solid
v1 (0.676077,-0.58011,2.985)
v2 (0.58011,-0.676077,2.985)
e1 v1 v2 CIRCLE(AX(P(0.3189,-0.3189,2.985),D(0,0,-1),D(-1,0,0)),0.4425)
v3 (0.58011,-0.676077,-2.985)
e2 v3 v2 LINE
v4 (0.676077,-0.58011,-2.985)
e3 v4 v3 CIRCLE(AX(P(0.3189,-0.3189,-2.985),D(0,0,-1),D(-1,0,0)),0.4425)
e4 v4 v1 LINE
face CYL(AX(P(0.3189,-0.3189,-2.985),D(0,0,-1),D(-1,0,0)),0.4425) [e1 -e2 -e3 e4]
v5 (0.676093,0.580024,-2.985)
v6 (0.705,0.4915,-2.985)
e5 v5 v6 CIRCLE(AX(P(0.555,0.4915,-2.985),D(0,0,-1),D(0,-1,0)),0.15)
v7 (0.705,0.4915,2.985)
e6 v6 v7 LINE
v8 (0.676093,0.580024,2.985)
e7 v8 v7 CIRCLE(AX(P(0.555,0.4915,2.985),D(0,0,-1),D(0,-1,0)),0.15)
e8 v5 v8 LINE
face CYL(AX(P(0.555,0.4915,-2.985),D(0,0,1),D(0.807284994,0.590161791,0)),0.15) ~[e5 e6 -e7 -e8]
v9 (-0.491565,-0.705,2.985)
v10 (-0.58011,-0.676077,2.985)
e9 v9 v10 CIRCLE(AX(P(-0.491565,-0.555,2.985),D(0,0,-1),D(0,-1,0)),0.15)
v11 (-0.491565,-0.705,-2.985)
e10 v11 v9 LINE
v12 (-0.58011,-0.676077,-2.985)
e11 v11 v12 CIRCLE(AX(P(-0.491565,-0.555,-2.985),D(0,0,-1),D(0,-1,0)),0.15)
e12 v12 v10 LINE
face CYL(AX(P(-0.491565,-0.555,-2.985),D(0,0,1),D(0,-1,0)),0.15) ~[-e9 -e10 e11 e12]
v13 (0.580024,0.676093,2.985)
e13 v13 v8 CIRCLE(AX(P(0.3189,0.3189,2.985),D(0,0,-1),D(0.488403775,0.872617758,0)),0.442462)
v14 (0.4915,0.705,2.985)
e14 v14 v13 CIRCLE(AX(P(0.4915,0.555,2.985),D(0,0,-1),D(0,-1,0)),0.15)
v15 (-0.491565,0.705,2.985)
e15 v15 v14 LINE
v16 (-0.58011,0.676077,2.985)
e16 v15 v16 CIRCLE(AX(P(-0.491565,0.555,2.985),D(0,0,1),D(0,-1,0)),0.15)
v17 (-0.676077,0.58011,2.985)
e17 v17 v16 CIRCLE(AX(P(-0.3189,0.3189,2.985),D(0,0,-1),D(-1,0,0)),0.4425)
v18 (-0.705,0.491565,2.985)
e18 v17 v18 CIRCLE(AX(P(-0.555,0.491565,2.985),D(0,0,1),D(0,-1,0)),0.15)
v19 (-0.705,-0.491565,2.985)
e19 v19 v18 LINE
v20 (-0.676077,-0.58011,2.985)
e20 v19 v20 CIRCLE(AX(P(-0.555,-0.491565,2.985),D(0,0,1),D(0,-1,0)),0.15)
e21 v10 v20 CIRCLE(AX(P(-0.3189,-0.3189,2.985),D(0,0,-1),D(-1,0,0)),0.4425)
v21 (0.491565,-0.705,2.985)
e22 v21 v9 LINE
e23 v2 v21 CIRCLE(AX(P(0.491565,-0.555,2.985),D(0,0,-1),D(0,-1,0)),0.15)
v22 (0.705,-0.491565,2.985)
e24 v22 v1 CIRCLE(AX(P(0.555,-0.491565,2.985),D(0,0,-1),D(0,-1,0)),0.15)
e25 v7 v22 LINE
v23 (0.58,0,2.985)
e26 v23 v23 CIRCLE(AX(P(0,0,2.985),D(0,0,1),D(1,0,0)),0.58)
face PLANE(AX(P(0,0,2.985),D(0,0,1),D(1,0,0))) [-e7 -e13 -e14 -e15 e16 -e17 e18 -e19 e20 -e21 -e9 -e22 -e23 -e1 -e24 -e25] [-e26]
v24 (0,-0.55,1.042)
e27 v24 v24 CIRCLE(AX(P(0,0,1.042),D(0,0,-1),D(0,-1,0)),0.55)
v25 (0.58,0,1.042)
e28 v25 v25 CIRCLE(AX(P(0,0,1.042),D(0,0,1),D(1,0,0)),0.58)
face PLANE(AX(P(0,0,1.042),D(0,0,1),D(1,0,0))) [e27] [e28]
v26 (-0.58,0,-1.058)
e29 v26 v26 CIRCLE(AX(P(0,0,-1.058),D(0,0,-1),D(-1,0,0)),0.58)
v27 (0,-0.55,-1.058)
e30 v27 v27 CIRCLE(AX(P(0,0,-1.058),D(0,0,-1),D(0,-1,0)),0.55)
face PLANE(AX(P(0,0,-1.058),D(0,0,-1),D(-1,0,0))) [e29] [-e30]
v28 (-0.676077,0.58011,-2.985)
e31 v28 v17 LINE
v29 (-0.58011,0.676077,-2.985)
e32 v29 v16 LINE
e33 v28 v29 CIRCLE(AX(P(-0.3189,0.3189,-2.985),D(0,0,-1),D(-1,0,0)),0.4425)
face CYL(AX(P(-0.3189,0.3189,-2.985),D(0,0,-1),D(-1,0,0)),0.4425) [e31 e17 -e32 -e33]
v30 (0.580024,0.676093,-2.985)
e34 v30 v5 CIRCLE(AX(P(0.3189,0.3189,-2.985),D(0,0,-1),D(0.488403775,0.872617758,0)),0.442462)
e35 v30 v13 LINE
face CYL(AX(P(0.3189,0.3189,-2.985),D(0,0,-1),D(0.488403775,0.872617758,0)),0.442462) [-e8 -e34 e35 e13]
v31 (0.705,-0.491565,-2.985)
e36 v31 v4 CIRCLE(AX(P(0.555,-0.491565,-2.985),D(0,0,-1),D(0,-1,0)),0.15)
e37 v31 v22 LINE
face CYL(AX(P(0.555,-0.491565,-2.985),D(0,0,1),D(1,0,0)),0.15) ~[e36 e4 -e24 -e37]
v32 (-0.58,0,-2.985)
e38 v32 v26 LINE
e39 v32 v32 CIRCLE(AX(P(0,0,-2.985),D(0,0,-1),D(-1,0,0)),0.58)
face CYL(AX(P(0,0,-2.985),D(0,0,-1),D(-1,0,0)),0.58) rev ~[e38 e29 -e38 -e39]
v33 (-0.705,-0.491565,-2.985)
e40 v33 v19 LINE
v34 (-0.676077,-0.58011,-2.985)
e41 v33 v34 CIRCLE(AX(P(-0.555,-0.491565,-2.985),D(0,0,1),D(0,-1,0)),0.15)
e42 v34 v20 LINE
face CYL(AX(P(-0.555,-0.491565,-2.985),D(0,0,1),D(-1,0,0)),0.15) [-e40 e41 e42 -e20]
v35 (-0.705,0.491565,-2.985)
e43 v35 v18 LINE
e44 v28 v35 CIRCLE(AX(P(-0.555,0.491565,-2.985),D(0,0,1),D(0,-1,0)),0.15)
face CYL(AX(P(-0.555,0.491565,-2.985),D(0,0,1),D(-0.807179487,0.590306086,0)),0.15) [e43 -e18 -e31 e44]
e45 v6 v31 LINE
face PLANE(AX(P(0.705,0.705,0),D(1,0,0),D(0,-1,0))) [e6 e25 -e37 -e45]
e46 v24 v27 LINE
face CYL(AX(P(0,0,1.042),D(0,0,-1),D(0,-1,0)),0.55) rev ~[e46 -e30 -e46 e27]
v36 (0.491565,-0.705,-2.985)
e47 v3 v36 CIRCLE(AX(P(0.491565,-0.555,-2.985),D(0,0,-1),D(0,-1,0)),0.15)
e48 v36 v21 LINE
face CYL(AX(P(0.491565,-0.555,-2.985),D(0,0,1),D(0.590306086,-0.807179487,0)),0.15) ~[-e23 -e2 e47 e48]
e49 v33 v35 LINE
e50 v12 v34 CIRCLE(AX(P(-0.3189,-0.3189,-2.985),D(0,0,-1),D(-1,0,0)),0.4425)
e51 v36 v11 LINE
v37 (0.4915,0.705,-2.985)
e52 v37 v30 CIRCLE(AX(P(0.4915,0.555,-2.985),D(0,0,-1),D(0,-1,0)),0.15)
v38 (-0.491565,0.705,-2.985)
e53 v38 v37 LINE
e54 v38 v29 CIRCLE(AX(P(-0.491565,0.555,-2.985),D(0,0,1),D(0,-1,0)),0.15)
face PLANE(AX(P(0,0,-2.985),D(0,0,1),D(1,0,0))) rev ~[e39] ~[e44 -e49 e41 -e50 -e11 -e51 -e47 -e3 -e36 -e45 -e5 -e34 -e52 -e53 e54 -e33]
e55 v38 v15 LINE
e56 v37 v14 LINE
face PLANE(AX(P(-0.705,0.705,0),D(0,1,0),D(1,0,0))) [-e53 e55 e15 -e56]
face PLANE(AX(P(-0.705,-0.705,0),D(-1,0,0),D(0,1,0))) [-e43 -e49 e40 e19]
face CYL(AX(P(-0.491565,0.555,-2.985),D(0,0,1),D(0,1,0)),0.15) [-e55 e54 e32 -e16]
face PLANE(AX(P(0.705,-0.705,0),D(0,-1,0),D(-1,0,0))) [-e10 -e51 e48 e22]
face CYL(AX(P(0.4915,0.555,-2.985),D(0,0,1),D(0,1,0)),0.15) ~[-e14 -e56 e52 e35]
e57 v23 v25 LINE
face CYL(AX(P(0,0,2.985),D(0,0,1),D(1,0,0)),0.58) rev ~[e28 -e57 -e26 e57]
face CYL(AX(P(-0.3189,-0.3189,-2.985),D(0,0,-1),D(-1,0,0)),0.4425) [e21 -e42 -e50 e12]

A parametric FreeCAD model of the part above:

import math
import FreeCAD as App
import Part
import Sketcher


def edges_at(feature, points):
    """Names of the edges that pass closest to the given points."""
    edges = feature.Shape.Edges
    near = lambda p: min(range(len(edges)), key=lambda i: edges[i].distToShape(Part.Vertex(*p))[0])
    return sorted({f"Edge{near(p) + 1}" for p in points})


def add_polygon(sketch, points):
    """Adds a closed chain of lines whose ends are joined by coincident constraints."""
    first, n = sketch.GeometryCount, len(points)
    for a, b in zip(points, points[1:] + points[:1]):
        sketch.addGeometry(Part.LineSegment(App.Vector(*a, 0), App.Vector(*b, 0)), False)
    for i in range(n):
        sketch.addConstraint(Sketcher.Constraint("Coincident", first + i, 2, first + (i + 1) % n, 1))

doc = App.newDocument("Part")
body = doc.addObject("PartDesign::Body", "Body")

# Sketch on XY plane
sketch1 = body.newObject("Sketcher::SketchObject", "Sketch")
sketch1.AttachmentSupport = (doc.getObject("XY_Plane"), [""])
sketch1.MapMode = "FlatFace"
add_polygon(sketch1, [(0.7, 0.7), (-0.7, 0.7), (-0.7, -0.7), (0.7, -0.7)])  # lines 0-3
sketch1.addConstraint(Sketcher.Constraint("Horizontal", 0))
sketch1.addConstraint(Sketcher.Constraint("Vertical", 1))
sketch1.addConstraint(Sketcher.Constraint("Horizontal", 2))
sketch1.addConstraint(Sketcher.Constraint("Vertical", 3))
sketch1.addConstraint(Sketcher.Constraint("Symmetric", 0, 2, 2, 2, -1, 1))
sketch1.addConstraint(Sketcher.Constraint("Equal", 2, 1))
sketch1.addConstraint(Sketcher.Constraint("DistanceX", 0, 2, 0, 1, 1.41))
pad1 = body.newObject("PartDesign::Pad", "Pad")
pad1.Profile = sketch1
pad1.Length = 5.97
pad1.Midplane = True

# Sketch on XY plane
sketch2 = body.newObject("Sketcher::SketchObject", "Sketch001")
sketch2.AttachmentSupport = (doc.getObject("XY_Plane"), [""])
sketch2.MapMode = "FlatFace"
sketch2.AttachmentOffset = App.Placement(App.Vector(0, 0, 2.985), App.Rotation())
sketch2.addGeometry(Part.Circle(App.Vector(0, 0, 0), App.Vector(0, 0, 1), 0.6), False)
sketch2.addConstraint(Sketcher.Constraint("Coincident", 0, 3, -1, 1))
sketch2.addConstraint(Sketcher.Constraint("Diameter", 0, 1.16))
pocket1 = body.newObject("PartDesign::Pocket", "Pocket")
pocket1.Profile = sketch2
pocket1.Length = 1.943

# Sketch on XY plane
sketch3 = body.newObject("Sketcher::SketchObject", "Sketch002")
sketch3.AttachmentSupport = (doc.getObject("XY_Plane"), [""])
sketch3.MapMode = "FlatFace"
sketch3.AttachmentOffset = App.Placement(App.Vector(0, 0, 1.042), App.Rotation())
sketch3.addGeometry(Part.Circle(App.Vector(0, 0, 0), App.Vector(0, 0, 1), 0.6), False)
sketch3.addConstraint(Sketcher.Constraint("Coincident", 0, 3, -1, 1))
sketch3.addConstraint(Sketcher.Constraint("Diameter", 0, 1.1))
doc.recompute()
hole = body.newObject("PartDesign::Hole", "Hole")
hole.Profile = sketch3
hole.ThreadType = "None"
hole.Diameter = 1.1
hole.DepthType = "Dimension"
hole.Depth = 2.1
hole.DrillPoint = "Flat"

# Sketch on XY plane
sketch4 = body.newObject("Sketcher::SketchObject", "Sketch003")
sketch4.AttachmentSupport = (doc.getObject("XY_Plane"), [""])
sketch4.MapMode = "FlatFace"
sketch4.AttachmentOffset = App.Placement(App.Vector(0, 0, -2.985), App.Rotation())
sketch4.addGeometry(Part.Circle(App.Vector(0, 0, 0), App.Vector(0, 0, 1), 0.6), False)
sketch4.addConstraint(Sketcher.Constraint("Coincident", 0, 3, -1, 1))
sketch4.addConstraint(Sketcher.Constraint("Diameter", 0, 1.16))
pocket2 = body.newObject("PartDesign::Pocket", "Pocket001")
pocket2.Profile = sketch4
pocket2.Length = 1.927
pocket2.Reversed = True

# Sketch on XY plane
sketch5 = body.newObject("Sketcher::SketchObject", "Sketch004")
sketch5.AttachmentSupport = (doc.getObject("XY_Plane"), [""])
sketch5.MapMode = "FlatFace"
sketch5.AttachmentOffset = App.Placement(App.Vector(0, 0, -2.985), App.Rotation())
sketch5.addGeometry(Part.LineSegment(App.Vector(0.54, 0.7, 0), App.Vector(0.7, 0.7, 0)), False)
sketch5.addGeometry(Part.LineSegment(App.Vector(0.7, 0.7, 0), App.Vector(0.7, 0.54, 0)), False)
sketch5.addGeometry(Part.ArcOfCircle(Part.Circle(App.Vector(0.32, 0.32, 0), App.Vector(0, 0, 1), 0.44), math.radians(29), math.radians(61)), False)
sketch5.addGeometry(Part.LineSegment(App.Vector(-0.7, 0.7, 0), App.Vector(-0.54, 0.7, 0)), False)
sketch5.addGeometry(Part.ArcOfCircle(Part.Circle(App.Vector(-0.32, 0.32, 0), App.Vector(0, 0, 1), 0.44), math.radians(119), math.radians(151)), False)
sketch5.addGeometry(Part.LineSegment(App.Vector(-0.7, 0.54, 0), App.Vector(-0.7, 0.7, 0)), False)
sketch5.addGeometry(Part.ArcOfCircle(Part.Circle(App.Vector(0.32, -0.32, 0), App.Vector(0, 0, 1), 0.44), math.radians(-61), math.radians(-29)), False)
sketch5.addGeometry(Part.LineSegment(App.Vector(0.7, -0.54, 0), App.Vector(0.7, -0.7, 0)), False)
sketch5.addGeometry(Part.LineSegment(App.Vector(0.7, -0.7, 0), App.Vector(0.54, -0.7, 0)), False)
sketch5.addGeometry(Part.LineSegment(App.Vector(-0.7, -0.7, 0), App.Vector(-0.7, -0.54, 0)), False)
sketch5.addGeometry(Part.ArcOfCircle(Part.Circle(App.Vector(-0.32, -0.32, 0), App.Vector(0, 0, 1), 0.44), math.radians(-151), math.radians(-119)), False)
sketch5.addGeometry(Part.LineSegment(App.Vector(-0.54, -0.7, 0), App.Vector(-0.7, -0.7, 0)), False)
sketch5.addConstraint(Sketcher.Constraint("Coincident", 0, 2, 1, 1))
sketch5.addConstraint(Sketcher.Constraint("Coincident", 1, 2, 2, 1))
sketch5.addConstraint(Sketcher.Constraint("Coincident", 2, 2, 0, 1))
sketch5.addConstraint(Sketcher.Constraint("Coincident", 3, 2, 4, 1))
sketch5.addConstraint(Sketcher.Constraint("Coincident", 4, 2, 5, 1))
sketch5.addConstraint(Sketcher.Constraint("Coincident", 5, 2, 3, 1))
sketch5.addConstraint(Sketcher.Constraint("Coincident", 6, 2, 7, 1))
sketch5.addConstraint(Sketcher.Constraint("Coincident", 7, 2, 8, 1))
sketch5.addConstraint(Sketcher.Constraint("Coincident", 8, 2, 6, 1))
sketch5.addConstraint(Sketcher.Constraint("Coincident", 9, 2, 10, 1))
sketch5.addConstraint(Sketcher.Constraint("Coincident", 10, 2, 11, 1))
sketch5.addConstraint(Sketcher.Constraint("Coincident", 11, 2, 9, 1))
sketch5.addConstraint(Sketcher.Constraint("Horizontal", 0))
sketch5.addConstraint(Sketcher.Constraint("Vertical", 1))
sketch5.addConstraint(Sketcher.Constraint("Horizontal", 3))
sketch5.addConstraint(Sketcher.Constraint("Vertical", 5))
sketch5.addConstraint(Sketcher.Constraint("Vertical", 7))
sketch5.addConstraint(Sketcher.Constraint("Horizontal", 8))
sketch5.addConstraint(Sketcher.Constraint("Vertical", 9))
sketch5.addConstraint(Sketcher.Constraint("Horizontal", 11))
sketch5.addConstraint(Sketcher.Constraint("Equal", 2, 4))
sketch5.addConstraint(Sketcher.Constraint("Equal", 4, 6))
sketch5.addConstraint(Sketcher.Constraint("Equal", 6, 10))
sketch5.addConstraint(Sketcher.Constraint("Symmetric", 4, 3, 6, 3, -1, 1))
sketch5.addConstraint(Sketcher.Constraint("Symmetric", 2, 3, 10, 3, -1, 1))
sketch5.addConstraint(Sketcher.Constraint("Symmetric", 5, 2, 7, 2, -1, 1))
sketch5.addConstraint(Sketcher.Constraint("Symmetric", 0, 2, 11, 2, -1, 1))
sketch5.addConstraint(Sketcher.Constraint("Symmetric", 2, 3, 4, 3, -2))
sketch5.addConstraint(Sketcher.Constraint("Symmetric", 0, 2, 5, 2, -2))
sketch5.addConstraint(Sketcher.Constraint("Equal", 11, 1))
sketch5.addConstraint(Sketcher.Constraint("DistanceX", 0, 1, 0, 2, 0.17))
sketch5.addConstraint(Sketcher.Constraint("Radius", 2, 0.4425))
sketch5.addConstraint(Sketcher.Constraint("DistanceX", 3, 2, 2, 2, 1.07))
sketch5.addConstraint(Sketcher.Constraint("DistanceY", 6, 2, 1, 2, 1.07))
pocket3 = body.newObject("PartDesign::Pocket", "Pocket002")
pocket3.Profile = sketch5
pocket3.Type = "ThroughAll"
pocket3.Reversed = True
doc.recompute()

fillet = body.newObject("PartDesign::Fillet", "Fillet")
fillet.Base = (pocket3, edges_at(pocket3, [
    (0.705, 0.535, 0),
    (0.535, 0.705, 0),
    (-0.535, 0.705, 0),
    (-0.705, 0.535, 0),
    (-0.705, -0.535, 0),
    (-0.535, -0.705, 0),
    (0.535, -0.705, 0),
    (0.705, -0.535, 0),
]))
fillet.Radius = 0.15

doc.recompute()
